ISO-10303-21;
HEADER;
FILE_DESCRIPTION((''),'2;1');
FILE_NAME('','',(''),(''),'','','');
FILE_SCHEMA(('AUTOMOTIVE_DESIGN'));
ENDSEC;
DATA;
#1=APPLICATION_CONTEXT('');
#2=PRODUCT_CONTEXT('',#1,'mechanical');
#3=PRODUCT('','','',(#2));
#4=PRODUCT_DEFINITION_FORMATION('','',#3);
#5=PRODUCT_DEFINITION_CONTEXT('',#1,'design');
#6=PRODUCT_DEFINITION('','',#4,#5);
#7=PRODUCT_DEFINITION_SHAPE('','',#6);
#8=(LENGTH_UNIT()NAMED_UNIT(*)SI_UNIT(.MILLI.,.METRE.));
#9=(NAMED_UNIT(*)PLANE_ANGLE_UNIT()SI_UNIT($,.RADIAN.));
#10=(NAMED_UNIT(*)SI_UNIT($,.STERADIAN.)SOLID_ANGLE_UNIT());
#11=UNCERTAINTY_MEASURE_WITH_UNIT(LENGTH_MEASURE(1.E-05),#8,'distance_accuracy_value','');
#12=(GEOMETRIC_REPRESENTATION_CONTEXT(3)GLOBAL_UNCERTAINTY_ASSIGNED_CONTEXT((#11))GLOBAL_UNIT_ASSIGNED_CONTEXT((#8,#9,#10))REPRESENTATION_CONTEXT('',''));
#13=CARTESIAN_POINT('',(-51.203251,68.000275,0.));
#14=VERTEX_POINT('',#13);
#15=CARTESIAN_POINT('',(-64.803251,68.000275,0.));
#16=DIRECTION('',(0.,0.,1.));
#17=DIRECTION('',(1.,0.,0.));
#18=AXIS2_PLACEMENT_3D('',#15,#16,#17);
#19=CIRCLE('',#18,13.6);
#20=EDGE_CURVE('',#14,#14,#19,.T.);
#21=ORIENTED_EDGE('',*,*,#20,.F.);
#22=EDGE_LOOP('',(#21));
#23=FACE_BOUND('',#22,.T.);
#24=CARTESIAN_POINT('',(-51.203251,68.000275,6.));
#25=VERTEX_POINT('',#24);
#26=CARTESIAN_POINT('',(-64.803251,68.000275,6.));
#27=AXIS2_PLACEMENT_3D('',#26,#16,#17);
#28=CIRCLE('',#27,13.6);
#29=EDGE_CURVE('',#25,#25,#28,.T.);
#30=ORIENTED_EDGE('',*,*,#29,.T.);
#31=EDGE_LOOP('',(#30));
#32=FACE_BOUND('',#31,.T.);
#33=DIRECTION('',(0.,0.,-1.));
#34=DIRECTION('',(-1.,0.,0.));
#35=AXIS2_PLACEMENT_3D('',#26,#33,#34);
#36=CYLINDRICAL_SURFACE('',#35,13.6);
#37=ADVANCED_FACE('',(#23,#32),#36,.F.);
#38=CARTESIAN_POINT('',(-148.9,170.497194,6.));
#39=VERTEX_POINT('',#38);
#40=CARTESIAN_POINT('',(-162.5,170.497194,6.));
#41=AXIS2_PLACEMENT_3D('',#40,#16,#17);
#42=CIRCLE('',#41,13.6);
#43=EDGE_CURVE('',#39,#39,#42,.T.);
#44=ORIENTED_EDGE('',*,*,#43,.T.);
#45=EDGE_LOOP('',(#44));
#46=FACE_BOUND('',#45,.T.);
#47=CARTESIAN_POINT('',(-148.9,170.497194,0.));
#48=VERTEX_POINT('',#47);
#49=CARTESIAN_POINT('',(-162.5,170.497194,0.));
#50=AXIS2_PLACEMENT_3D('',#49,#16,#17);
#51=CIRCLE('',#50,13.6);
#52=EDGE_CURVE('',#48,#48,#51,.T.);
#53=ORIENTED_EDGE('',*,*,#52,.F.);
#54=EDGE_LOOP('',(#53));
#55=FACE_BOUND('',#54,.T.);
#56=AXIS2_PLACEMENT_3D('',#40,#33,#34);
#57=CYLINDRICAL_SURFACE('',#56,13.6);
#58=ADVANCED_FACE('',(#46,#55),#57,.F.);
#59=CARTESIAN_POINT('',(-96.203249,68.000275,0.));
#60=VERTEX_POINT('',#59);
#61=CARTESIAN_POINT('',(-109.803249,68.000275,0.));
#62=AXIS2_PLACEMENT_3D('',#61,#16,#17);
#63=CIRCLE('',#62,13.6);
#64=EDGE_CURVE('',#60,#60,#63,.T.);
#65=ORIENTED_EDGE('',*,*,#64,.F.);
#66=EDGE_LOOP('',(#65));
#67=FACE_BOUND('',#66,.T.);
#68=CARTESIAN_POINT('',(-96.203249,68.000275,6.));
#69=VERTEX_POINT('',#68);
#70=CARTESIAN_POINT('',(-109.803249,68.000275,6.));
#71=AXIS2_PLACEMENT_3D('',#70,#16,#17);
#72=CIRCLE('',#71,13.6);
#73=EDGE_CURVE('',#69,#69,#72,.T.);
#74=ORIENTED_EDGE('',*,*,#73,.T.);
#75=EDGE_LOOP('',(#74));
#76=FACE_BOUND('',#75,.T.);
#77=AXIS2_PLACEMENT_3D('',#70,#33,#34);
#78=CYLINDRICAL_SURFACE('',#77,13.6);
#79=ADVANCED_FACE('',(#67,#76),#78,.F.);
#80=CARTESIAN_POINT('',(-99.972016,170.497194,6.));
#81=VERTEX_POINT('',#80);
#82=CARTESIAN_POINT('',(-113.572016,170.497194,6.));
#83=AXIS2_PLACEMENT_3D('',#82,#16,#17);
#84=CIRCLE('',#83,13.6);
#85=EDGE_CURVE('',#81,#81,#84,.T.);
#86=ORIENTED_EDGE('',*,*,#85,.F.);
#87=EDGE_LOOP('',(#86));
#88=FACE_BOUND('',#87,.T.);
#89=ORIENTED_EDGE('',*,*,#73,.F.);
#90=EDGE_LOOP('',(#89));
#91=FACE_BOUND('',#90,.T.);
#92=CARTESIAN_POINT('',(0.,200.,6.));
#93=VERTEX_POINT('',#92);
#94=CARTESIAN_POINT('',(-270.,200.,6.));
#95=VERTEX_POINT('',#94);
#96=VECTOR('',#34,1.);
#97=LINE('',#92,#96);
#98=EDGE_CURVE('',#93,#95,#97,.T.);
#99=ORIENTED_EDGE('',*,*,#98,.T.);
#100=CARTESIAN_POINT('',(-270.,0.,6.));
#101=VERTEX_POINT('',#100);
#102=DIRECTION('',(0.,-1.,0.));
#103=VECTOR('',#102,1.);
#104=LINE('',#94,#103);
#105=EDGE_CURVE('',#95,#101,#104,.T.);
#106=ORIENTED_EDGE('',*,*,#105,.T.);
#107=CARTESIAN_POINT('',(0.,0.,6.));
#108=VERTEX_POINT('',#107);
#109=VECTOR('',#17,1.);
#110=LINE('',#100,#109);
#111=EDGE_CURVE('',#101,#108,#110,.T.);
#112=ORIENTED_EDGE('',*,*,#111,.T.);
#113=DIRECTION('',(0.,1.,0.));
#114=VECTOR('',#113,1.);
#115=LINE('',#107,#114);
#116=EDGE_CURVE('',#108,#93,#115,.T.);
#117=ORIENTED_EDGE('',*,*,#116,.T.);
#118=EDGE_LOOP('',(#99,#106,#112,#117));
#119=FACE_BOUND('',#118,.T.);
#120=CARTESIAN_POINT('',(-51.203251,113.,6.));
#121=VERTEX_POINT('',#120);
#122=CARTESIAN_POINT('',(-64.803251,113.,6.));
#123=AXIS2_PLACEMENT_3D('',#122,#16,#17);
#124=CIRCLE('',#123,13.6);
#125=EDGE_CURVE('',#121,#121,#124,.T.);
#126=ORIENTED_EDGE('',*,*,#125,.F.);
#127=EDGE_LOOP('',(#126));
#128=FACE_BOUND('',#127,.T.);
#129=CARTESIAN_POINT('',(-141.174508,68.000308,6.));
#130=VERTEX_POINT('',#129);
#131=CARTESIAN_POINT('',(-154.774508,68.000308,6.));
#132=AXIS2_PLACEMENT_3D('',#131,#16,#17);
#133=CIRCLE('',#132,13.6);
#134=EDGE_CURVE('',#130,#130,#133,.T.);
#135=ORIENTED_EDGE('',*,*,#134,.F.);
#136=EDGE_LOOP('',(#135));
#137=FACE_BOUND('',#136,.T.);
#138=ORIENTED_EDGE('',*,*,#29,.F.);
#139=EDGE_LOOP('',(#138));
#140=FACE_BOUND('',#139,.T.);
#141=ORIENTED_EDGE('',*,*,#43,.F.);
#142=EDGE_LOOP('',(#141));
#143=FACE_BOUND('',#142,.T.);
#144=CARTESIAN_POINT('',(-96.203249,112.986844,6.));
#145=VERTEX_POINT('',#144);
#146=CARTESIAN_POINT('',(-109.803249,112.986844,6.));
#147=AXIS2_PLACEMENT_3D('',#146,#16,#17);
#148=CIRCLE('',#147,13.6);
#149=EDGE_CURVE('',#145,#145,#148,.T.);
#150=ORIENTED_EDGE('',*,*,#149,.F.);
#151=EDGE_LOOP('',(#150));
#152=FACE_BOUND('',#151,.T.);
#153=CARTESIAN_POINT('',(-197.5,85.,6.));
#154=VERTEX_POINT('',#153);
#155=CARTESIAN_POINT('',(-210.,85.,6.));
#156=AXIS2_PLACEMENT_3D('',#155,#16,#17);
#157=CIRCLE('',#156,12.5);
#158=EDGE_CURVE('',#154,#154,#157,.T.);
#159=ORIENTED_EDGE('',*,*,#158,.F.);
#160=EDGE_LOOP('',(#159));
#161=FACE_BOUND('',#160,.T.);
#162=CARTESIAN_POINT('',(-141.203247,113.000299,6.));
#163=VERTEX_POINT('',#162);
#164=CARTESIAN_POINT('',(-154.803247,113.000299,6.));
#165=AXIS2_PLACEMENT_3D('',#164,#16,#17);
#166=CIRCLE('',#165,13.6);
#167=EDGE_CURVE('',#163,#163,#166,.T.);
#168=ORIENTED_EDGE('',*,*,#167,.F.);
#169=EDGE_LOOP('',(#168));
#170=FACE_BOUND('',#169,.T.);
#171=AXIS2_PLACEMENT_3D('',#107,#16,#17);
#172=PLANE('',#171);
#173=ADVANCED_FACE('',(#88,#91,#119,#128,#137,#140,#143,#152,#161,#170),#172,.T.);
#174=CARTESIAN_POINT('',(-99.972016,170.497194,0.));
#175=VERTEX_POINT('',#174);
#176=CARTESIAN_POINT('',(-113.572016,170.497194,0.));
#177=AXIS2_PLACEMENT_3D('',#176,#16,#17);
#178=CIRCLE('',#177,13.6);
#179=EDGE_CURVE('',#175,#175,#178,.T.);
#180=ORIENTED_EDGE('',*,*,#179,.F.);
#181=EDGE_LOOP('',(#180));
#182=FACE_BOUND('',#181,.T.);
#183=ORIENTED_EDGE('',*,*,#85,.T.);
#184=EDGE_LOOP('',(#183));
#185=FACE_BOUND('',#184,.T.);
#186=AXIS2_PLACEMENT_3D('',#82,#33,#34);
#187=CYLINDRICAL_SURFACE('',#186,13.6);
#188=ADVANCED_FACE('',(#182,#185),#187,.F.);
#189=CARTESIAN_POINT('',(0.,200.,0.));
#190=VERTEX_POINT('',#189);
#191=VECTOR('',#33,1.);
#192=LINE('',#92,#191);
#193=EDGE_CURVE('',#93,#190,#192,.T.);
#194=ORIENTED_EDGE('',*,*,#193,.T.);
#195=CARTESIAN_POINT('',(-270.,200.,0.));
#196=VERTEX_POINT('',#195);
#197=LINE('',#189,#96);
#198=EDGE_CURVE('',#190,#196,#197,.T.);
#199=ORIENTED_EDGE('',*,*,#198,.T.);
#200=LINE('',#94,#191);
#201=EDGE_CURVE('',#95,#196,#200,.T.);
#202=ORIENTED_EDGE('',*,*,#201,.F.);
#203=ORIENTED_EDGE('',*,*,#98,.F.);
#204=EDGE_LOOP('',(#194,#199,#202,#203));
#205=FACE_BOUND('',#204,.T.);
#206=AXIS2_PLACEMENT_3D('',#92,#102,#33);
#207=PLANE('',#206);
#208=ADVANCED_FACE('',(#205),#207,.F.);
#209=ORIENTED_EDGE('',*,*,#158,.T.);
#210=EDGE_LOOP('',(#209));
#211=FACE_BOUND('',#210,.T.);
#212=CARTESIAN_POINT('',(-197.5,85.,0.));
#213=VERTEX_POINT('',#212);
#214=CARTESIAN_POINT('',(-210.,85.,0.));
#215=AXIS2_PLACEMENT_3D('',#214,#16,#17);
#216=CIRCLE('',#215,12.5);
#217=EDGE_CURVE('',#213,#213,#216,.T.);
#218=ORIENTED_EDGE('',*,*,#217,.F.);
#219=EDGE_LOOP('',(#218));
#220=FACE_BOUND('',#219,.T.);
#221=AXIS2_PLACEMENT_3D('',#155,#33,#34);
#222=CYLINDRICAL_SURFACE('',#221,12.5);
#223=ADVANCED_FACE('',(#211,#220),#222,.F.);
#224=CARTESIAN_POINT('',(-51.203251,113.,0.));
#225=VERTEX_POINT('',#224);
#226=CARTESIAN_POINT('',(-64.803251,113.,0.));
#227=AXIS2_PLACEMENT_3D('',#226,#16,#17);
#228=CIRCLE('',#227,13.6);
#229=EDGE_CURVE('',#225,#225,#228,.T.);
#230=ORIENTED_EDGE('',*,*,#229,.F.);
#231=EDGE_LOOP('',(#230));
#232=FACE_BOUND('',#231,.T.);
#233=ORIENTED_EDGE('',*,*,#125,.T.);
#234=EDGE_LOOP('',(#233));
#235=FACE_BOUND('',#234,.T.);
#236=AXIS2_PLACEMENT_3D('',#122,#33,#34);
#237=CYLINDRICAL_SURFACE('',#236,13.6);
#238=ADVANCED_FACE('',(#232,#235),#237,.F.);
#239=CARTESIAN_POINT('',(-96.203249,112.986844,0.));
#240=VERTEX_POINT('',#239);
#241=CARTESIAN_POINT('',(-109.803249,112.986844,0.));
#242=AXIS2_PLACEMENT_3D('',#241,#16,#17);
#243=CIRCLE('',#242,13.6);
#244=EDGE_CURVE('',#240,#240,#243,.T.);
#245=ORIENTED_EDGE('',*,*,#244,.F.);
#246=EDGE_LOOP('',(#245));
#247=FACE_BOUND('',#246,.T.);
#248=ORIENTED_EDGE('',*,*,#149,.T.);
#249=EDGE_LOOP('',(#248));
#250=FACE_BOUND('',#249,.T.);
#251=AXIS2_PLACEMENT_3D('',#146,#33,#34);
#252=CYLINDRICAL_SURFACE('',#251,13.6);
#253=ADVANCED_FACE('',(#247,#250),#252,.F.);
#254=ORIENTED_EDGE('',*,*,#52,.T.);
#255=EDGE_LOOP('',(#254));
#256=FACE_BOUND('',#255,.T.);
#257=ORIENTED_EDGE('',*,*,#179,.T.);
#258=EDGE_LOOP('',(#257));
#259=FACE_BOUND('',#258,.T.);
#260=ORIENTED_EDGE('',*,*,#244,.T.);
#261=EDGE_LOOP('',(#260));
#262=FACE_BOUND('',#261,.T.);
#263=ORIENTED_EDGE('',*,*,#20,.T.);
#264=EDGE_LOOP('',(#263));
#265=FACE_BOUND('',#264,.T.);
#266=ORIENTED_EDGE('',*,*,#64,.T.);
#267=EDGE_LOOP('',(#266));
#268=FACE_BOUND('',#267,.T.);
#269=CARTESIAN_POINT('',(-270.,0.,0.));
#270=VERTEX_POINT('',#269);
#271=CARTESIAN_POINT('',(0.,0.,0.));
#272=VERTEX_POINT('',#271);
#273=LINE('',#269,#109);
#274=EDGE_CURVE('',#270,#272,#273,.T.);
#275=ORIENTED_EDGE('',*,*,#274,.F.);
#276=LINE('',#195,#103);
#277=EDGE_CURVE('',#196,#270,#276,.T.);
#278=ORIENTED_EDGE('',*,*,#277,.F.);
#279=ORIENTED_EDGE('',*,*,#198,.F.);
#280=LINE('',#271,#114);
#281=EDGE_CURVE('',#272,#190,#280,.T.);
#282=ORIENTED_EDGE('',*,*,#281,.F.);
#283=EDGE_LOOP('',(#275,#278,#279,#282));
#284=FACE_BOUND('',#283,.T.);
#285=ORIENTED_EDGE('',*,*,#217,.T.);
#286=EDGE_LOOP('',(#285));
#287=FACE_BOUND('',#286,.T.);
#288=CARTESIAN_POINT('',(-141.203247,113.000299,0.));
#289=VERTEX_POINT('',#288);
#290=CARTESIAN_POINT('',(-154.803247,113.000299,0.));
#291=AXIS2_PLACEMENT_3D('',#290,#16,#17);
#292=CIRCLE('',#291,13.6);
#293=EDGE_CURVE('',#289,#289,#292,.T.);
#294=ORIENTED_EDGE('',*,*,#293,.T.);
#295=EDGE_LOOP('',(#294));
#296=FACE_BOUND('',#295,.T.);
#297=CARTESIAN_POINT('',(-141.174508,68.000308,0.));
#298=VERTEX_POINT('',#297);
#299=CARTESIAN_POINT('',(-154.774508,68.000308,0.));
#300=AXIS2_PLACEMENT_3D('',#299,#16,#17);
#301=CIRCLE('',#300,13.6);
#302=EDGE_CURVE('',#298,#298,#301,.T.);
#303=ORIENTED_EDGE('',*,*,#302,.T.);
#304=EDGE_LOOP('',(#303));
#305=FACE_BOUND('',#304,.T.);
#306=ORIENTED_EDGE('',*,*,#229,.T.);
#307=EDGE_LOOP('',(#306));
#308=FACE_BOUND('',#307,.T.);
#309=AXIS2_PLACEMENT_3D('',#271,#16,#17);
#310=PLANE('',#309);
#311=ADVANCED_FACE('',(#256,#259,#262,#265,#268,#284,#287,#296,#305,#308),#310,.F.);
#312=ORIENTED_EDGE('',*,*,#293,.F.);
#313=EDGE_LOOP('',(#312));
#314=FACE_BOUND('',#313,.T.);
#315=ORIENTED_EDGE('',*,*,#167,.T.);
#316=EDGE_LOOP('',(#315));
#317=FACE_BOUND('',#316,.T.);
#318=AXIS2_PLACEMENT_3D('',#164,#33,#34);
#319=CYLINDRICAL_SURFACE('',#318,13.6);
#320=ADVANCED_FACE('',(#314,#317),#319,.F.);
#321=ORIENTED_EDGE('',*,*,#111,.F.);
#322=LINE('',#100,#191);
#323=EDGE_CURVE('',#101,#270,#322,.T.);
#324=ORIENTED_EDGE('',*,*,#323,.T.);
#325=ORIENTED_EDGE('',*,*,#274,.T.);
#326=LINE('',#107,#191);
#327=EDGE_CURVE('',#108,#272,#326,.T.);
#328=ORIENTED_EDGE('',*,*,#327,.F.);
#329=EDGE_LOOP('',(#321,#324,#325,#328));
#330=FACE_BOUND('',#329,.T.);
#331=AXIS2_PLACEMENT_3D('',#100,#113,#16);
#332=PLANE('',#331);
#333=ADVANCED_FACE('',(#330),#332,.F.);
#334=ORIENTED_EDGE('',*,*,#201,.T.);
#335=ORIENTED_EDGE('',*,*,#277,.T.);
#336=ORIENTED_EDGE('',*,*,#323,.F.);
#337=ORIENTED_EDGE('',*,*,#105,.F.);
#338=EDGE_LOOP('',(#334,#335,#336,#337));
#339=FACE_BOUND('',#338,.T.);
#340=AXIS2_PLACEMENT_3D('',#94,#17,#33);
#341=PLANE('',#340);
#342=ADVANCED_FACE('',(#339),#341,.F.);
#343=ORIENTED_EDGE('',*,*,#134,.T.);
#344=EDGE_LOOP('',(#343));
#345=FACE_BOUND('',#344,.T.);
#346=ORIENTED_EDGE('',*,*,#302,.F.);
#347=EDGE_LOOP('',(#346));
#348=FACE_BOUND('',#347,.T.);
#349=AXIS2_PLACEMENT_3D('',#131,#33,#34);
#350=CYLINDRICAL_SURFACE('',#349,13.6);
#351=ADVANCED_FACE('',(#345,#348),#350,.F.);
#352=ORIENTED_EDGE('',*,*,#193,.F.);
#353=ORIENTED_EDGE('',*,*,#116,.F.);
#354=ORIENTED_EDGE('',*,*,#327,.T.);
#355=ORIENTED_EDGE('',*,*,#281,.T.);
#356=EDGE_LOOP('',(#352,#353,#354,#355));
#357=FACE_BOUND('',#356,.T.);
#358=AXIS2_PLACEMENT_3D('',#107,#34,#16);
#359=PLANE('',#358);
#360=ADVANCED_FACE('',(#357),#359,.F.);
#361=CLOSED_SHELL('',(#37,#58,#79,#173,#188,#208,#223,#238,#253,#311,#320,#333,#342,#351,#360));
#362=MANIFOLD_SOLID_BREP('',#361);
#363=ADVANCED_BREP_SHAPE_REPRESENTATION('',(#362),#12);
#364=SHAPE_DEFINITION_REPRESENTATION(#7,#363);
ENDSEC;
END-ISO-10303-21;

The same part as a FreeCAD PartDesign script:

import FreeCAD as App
import Part
import Sketcher
from FreeCAD import Vector


def add_polygon(sketch, points):
    """Adds a closed chain of lines whose ends are joined by coincident constraints."""
    first, n = sketch.GeometryCount, len(points)
    for a, b in zip(points, points[1:] + points[:1]):
        sketch.addGeometry(Part.LineSegment(App.Vector(*a, 0), App.Vector(*b, 0)), False)
    for i in range(n):
        sketch.addConstraint(Sketcher.Constraint("Coincident", first + i, 2, first + (i + 1) % n, 1))

doc = App.newDocument("Part")
body = doc.addObject("PartDesign::Body", "Body")

sketch1 = doc.addObject("Sketcher::SketchObject", "Sketch")
body.addObject(sketch1)
sketch1.AttachmentSupport = (doc.XY_Plane, [""])
sketch1.MapMode = "FlatFace"
add_polygon(sketch1, [(-270, 200), (-270, 0), (0, 0), (0, 200)])
sketch1.addGeometry(Part.Circle(Vector(-210, 85, 0), Vector(0, 0, 1), 12), False)
sketch1.addGeometry(Part.Circle(Vector(-155, 68, 0), Vector(0, 0, 1), 14), False)
sketch1.addGeometry(Part.Circle(Vector(-155, 113, 0), Vector(0, 0, 1), 14), False)
sketch1.addGeometry(Part.Circle(Vector(-110, 68, 0), Vector(0, 0, 1), 14), False)
sketch1.addGeometry(Part.Circle(Vector(-65, 68, 0), Vector(0, 0, 1), 14), False)
sketch1.addGeometry(Part.Circle(Vector(-110, 113, 0), Vector(0, 0, 1), 14), False)
sketch1.addGeometry(Part.Circle(Vector(-65, 113, 0), Vector(0, 0, 1), 14), False)
sketch1.addGeometry(Part.Circle(Vector(-162, 170, 0), Vector(0, 0, 1), 14), False)
sketch1.addGeometry(Part.Circle(Vector(-114, 170, 0), Vector(0, 0, 1), 14), False)
sketch1.addConstraint([
    Sketcher.Constraint("Vertical", 0),
    Sketcher.Constraint("Horizontal", 1),
    Sketcher.Constraint("Vertical", 2),
    Sketcher.Constraint("Horizontal", 3),
    Sketcher.Constraint("Coincident", 1, 2, -1, 1),
    Sketcher.Constraint("Equal", 5, 6),
    Sketcher.Constraint("Equal", 6, 7),
    Sketcher.Constraint("Equal", 7, 8),
    Sketcher.Constraint("Equal", 8, 9),
    Sketcher.Constraint("Equal", 9, 10),
    Sketcher.Constraint("Equal", 10, 11),
    Sketcher.Constraint("Equal", 11, 12),
    Sketcher.Constraint("Horizontal", 7, 3, 8, 3),
    Sketcher.Constraint("Horizontal", 11, 3, 12, 3),
    Sketcher.Constraint("Vertical", 7, 3, 9, 3),
    Sketcher.Constraint("Vertical", 8, 3, 10, 3),
    Sketcher.Constraint("Diameter", 4, 25.0),
    Sketcher.Constraint("Diameter", 5, 27.2),
    Sketcher.Constraint("DistanceX", 1, 1, 1, 2, 270.0),
    Sketcher.Constraint("DistanceY", 0, 2, 0, 1, 200.0),
    Sketcher.Constraint("DistanceX", 4, 3, -1, 1, 210.0),
    Sketcher.Constraint("DistanceY", -1, 1, 4, 3, 85.0),
    Sketcher.Constraint("DistanceY", -1, 1, 10, 3, 113.0),
    Sketcher.Constraint("DistanceX", 7, 3, 8, 3, 44.999998),
    Sketcher.Constraint("DistanceX", 11, 3, -1, 1, 162.5),
    Sketcher.Constraint("DistanceY", -1, 1, 6, 3, 113.000299),
    Sketcher.Constraint("DistanceY", -1, 1, 5, 3, 68.000308),
    Sketcher.Constraint("DistanceX", 7, 3, -1, 1, 109.803249),
    Sketcher.Constraint("DistanceX", 6, 3, 5, 3, 0.028739),
    Sketcher.Constraint("DistanceX", 5, 3, 7, 3, 44.971259),
    Sketcher.Constraint("DistanceY", 7, 3, 9, 3, 44.986569),
    Sketcher.Constraint("DistanceY", 9, 3, 11, 3, 57.51035),
    Sketcher.Constraint("DistanceX", 6, 3, 12, 3, 41.231231),
    Sketcher.Constraint("DistanceY", -1, 1, 7, 3, 68.000275),
])
pad1 = doc.addObject("PartDesign::Pad", "Pad")
body.addObject(pad1)
pad1.Profile = sketch1
pad1.Length = 6

doc.recompute()
